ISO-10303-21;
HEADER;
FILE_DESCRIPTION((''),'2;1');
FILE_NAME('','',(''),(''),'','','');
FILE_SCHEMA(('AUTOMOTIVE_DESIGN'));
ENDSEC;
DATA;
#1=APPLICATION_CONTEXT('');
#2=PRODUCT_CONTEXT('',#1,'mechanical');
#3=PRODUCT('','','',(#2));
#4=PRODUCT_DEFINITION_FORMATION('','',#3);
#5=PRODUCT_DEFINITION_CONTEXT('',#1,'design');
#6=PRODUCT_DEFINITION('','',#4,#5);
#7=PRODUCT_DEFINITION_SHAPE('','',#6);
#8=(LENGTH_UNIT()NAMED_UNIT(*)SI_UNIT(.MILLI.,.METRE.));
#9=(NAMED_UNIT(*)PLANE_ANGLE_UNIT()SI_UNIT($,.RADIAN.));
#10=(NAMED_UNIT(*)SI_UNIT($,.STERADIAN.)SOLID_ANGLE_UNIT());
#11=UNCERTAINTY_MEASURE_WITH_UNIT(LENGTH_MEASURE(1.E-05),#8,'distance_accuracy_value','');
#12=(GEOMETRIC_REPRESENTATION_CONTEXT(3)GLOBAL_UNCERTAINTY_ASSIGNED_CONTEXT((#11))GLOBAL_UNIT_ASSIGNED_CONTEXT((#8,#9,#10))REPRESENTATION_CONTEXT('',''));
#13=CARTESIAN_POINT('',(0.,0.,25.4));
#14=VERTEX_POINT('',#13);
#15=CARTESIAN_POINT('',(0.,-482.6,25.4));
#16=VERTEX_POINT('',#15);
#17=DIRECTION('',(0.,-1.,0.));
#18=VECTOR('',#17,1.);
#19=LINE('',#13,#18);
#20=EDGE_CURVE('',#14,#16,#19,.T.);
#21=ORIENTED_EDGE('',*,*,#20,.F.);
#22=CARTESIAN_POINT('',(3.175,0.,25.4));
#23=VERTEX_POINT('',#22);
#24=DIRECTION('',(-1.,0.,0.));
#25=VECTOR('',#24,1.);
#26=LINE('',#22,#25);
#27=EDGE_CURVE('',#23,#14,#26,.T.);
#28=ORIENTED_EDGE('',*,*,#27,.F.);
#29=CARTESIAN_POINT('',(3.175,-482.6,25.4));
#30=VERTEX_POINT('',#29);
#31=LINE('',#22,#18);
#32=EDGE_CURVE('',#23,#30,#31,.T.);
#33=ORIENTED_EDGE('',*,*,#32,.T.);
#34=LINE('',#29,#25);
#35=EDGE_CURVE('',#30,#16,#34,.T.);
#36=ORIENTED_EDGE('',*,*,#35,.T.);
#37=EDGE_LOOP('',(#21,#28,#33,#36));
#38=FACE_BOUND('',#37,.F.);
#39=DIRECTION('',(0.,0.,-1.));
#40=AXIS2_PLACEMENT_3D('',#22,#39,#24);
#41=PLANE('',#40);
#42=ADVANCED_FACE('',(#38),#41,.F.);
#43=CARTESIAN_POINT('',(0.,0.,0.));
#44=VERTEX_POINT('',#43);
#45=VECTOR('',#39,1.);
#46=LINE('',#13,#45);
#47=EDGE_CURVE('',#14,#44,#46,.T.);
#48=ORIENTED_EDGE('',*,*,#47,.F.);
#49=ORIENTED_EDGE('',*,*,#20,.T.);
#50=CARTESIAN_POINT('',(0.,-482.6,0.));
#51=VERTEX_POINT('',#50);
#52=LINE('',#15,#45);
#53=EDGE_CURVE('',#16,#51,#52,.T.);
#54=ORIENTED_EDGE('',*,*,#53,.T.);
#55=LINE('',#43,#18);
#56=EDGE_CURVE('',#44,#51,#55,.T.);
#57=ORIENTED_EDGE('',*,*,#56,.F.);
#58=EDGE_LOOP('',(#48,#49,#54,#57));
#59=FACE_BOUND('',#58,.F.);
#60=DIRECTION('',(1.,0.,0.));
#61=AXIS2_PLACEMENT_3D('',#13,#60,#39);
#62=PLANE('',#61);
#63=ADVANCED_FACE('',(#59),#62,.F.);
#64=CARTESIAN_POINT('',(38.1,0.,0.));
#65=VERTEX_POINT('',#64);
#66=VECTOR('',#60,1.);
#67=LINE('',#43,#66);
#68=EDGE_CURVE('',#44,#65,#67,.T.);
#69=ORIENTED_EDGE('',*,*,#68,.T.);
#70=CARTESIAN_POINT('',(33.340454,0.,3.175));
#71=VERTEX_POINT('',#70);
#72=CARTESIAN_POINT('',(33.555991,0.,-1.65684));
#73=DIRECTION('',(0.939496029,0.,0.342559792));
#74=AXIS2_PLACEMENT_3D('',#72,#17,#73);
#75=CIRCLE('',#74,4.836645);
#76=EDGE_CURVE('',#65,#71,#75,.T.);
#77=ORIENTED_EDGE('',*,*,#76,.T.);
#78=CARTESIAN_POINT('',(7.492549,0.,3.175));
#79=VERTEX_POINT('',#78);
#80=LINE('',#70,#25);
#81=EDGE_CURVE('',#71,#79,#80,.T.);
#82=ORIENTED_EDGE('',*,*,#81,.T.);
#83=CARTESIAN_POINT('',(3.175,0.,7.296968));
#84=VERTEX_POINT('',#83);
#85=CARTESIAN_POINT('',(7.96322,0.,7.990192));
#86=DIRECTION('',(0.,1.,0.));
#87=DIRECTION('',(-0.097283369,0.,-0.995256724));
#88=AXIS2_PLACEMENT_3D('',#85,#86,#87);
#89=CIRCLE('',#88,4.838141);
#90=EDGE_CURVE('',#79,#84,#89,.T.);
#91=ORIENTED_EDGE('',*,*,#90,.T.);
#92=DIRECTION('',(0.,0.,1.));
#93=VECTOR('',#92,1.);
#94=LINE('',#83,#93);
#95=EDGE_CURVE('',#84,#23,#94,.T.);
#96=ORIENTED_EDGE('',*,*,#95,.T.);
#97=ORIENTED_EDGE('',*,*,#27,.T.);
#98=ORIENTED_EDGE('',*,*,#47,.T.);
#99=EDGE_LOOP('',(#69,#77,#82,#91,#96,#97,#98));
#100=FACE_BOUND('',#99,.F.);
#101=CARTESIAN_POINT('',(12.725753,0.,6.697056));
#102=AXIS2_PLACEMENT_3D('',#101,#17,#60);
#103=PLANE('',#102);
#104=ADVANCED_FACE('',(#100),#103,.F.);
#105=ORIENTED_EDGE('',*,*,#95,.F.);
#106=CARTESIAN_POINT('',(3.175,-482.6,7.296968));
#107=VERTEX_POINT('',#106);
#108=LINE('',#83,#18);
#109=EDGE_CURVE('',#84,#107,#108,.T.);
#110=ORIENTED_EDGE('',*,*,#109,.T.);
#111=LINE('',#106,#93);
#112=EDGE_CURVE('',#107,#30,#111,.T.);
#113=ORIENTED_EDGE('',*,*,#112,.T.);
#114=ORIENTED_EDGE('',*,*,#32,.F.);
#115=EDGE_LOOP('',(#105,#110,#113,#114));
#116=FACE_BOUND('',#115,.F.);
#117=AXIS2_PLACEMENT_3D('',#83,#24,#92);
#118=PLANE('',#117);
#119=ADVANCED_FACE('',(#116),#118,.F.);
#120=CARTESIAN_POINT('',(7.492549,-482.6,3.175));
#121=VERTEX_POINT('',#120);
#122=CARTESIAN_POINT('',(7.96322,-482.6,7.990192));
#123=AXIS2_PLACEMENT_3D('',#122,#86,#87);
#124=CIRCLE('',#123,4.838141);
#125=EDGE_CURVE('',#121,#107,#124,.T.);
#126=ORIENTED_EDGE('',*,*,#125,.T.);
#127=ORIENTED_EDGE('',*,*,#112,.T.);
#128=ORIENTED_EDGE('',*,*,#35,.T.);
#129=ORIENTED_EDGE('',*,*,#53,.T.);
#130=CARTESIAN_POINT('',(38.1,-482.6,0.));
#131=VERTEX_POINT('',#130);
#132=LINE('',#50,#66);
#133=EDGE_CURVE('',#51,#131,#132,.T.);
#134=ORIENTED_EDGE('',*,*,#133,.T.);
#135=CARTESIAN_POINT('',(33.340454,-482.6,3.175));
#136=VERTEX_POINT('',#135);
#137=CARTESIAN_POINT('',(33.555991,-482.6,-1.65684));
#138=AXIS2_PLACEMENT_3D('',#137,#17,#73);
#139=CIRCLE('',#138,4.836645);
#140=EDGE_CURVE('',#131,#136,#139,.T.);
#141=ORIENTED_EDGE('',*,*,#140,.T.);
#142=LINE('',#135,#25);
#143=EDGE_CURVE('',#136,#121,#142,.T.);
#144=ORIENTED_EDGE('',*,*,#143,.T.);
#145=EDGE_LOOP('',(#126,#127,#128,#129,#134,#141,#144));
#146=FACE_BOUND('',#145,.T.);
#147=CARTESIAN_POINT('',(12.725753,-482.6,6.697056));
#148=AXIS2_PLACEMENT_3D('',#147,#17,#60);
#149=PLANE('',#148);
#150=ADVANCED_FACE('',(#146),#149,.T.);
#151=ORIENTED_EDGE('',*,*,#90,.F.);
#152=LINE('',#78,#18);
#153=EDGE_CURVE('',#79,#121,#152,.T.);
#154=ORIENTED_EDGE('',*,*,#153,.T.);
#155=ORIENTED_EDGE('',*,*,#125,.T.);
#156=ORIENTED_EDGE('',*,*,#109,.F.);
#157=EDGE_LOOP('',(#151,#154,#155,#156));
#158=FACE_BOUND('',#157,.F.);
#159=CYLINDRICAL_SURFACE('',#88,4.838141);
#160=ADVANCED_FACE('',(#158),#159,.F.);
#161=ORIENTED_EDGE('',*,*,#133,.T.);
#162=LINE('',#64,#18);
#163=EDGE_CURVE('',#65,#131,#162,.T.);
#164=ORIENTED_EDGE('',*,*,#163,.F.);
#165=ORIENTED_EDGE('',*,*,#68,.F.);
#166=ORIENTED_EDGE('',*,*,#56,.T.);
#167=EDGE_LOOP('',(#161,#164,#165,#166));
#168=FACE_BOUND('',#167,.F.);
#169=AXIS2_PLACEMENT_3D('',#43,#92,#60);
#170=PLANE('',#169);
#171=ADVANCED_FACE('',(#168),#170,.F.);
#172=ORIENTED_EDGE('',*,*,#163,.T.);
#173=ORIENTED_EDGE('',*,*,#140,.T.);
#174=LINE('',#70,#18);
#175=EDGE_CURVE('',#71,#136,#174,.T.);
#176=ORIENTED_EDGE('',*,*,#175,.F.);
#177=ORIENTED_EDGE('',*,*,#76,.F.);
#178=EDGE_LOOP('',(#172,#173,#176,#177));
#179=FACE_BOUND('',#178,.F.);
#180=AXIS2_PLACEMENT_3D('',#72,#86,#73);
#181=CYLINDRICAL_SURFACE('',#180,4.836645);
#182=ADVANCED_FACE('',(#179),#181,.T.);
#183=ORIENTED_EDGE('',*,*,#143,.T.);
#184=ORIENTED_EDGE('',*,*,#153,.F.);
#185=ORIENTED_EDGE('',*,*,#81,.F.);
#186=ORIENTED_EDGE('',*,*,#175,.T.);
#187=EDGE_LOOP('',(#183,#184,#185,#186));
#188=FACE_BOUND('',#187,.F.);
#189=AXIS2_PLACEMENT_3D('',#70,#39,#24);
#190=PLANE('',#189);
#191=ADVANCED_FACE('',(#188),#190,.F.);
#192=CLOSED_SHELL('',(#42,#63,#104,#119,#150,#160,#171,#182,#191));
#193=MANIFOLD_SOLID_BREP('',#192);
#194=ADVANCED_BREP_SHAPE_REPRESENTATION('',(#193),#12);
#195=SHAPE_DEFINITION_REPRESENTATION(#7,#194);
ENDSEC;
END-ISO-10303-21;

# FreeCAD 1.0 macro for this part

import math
import FreeCAD as App
import Part
import Sketcher
Q = App.Units.Quantity

doc = App.newDocument("Part")
body = doc.addObject("PartDesign::Body", "Body")

sketch1 = body.newObject("Sketcher::SketchObject", "Sketch")
sketch1.AttachmentSupport = (doc.getObject("XZ_Plane"), [""])
sketch1.MapMode = "FlatFace"
sketch1.addGeometry(Part.LineSegment(App.Vector(0, 0, 0), App.Vector(38.1, 0, 0)), False)
sketch1.addGeometry(Part.ArcOfCircle(Part.Circle(App.Vector(33.6, -1.7, 0), App.Vector(0, 0, 1), 4.8), math.radians(20), math.radians(93)), False)
sketch1.addGeometry(Part.LineSegment(App.Vector(33.3, 3.2, 0), App.Vector(7.5, 3.2, 0)), False)
sketch1.addGeometry(Part.ArcOfCircle(Part.Circle(App.Vector(8, 8, 0), App.Vector(0, 0, 1), 4.8), math.radians(-172), math.radians(-96)), False)
sketch1.addGeometry(Part.LineSegment(App.Vector(3.2, 7.3, 0), App.Vector(3.2, 25.4, 0)), False)
sketch1.addGeometry(Part.LineSegment(App.Vector(3.2, 25.4, 0), App.Vector(0, 25.4, 0)), False)
sketch1.addGeometry(Part.LineSegment(App.Vector(0, 25.4, 0), App.Vector(0, 0, 0)), False)
sketch1.addConstraint(Sketcher.Constraint("Coincident", 0, 2, 1, 1))
sketch1.addConstraint(Sketcher.Constraint("Coincident", 1, 2, 2, 1))
sketch1.addConstraint(Sketcher.Constraint("Coincident", 2, 2, 3, 2))
sketch1.addConstraint(Sketcher.Constraint("Coincident", 3, 1, 4, 1))
sketch1.addConstraint(Sketcher.Constraint("Coincident", 4, 2, 5, 1))
sketch1.addConstraint(Sketcher.Constraint("Coincident", 5, 2, 6, 1))
sketch1.addConstraint(Sketcher.Constraint("Coincident", 6, 2, 0, 1))
sketch1.addConstraint(Sketcher.Constraint("Horizontal", 0))
sketch1.addConstraint(Sketcher.Constraint("Horizontal", 2))
sketch1.addConstraint(Sketcher.Constraint("Vertical", 4))
sketch1.addConstraint(Sketcher.Constraint("Horizontal", 5))
sketch1.addConstraint(Sketcher.Constraint("Vertical", 6))
sketch1.addConstraint(Sketcher.Constraint("Coincident", 6, 2, -1, 1))
sketch1.addConstraint(Sketcher.Constraint("DistanceY", 6, 2, 6, 1, Q("1 in")))
sketch1.addConstraint(Sketcher.Constraint("DistanceX", 0, 1, 0, 2, Q("1.5 in")))
sketch1.addConstraint(Sketcher.Constraint("DistanceX", 5, 2, 5, 1, Q("0.125 in")))
sketch1.addConstraint(Sketcher.Constraint("DistanceY", -1, 1, 1, 2, Q("0.125 in")))
sketch1.addConstraint(Sketcher.Constraint("Radius", 3, Q("4.838141 mm")))
sketch1.addConstraint(Sketcher.Constraint("Radius", 1, Q("4.836645 mm")))
sketch1.addConstraint(Sketcher.Constraint("DistanceY", 4, 1, 4, 2, Q("18.103032 mm")))
sketch1.addConstraint(Sketcher.Constraint("DistanceX", 2, 2, 2, 1, Q("25.847905 mm")))
sketch1.addConstraint(Sketcher.Constraint("DistanceX", -1, 1, 1, 3, Q("33.555991 mm")))
pad1 = body.newObject("PartDesign::Pad", "Pad")
pad1.Profile = sketch1
pad1.Length = Q("19 in")

doc.recompute()
